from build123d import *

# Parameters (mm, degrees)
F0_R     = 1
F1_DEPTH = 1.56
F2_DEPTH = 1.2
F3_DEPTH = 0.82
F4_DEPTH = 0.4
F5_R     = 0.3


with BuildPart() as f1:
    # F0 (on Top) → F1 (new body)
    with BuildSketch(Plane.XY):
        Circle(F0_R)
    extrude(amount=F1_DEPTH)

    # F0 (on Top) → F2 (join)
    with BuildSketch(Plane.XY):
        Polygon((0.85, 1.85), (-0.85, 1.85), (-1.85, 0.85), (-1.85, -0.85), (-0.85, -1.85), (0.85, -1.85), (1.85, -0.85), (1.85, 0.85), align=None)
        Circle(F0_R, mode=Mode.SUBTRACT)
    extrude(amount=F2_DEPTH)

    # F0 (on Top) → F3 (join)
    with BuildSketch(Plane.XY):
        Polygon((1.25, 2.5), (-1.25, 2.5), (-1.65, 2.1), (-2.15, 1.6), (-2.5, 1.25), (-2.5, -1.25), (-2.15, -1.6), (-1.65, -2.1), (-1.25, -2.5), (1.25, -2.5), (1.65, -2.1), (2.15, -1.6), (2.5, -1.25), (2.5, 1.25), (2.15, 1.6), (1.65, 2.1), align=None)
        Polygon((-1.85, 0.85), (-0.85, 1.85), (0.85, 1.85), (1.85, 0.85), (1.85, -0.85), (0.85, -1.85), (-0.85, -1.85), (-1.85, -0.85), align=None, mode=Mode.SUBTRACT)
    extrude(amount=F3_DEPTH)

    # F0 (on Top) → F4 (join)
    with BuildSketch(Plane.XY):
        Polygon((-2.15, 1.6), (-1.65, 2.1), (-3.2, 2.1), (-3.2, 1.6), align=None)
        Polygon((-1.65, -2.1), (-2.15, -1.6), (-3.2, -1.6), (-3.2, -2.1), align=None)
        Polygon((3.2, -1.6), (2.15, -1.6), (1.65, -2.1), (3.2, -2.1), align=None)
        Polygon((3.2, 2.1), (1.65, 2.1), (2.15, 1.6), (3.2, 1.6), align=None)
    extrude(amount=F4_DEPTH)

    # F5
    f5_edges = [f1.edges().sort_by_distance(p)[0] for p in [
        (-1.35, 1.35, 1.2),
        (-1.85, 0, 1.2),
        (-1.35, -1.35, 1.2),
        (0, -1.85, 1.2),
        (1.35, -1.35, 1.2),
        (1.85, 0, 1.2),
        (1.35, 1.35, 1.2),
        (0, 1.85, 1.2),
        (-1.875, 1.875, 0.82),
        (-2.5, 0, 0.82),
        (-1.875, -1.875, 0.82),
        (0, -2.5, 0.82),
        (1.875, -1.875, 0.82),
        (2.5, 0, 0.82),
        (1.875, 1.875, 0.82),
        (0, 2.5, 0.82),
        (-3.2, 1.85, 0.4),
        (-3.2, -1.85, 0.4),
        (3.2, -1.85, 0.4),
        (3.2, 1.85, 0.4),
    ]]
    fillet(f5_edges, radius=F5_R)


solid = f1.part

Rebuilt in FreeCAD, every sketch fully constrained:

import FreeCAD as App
import Part
import Sketcher

V = App.Vector
Q = App.Units.Quantity


def edges_at(feature, points):
    """Names of the edges that pass closest to the given points."""
    edges = feature.Shape.Edges
    near = lambda p: min(range(len(edges)), key=lambda i: edges[i].distToShape(Part.Vertex(*p))[0])
    return sorted({f"Edge{near(p) + 1}" for p in points})


def add_polygon(sketch, points):
    """Adds a closed chain of lines whose ends are joined by coincident constraints."""
    first, n = sketch.GeometryCount, len(points)
    for a, b in zip(points, points[1:] + points[:1]):
        sketch.addGeometry(Part.LineSegment(App.Vector(*a, 0), App.Vector(*b, 0)), False)
    for i in range(n):
        sketch.addConstraint(Sketcher.Constraint("Coincident", first + i, 2, first + (i + 1) % n, 1))

doc = App.newDocument("Part")
params = doc.addObject("Spreadsheet::Sheet", "Params")
for row, (alias, value) in enumerate([
    ("sketch1_diameter", "2 mm"),
    ("pad1_length", "1.56 mm"),
    ("sketch2_diameter", "2 mm"),
    ("sketch2_width", "1.7 mm"),
    ("pad2_length", "1.2 mm"),
    ("sketch3_width", "2.5 mm"),
    ("sketch3_width2", "1.7 mm"),
    ("pad3_length", "0.82 mm"),
    ("sketch4_height", "0.5 mm"),
    ("sketch4_width", "1.55 mm"),
    ("pad4_length", "0.4 mm"),
    ("fillet_radius", "0.3 mm"),
], start=1):
    params.set(f"A{row}", alias)
    params.set(f"B{row}", "=" + value)
    params.setAlias(f"B{row}", alias)

body = doc.addObject("PartDesign::Body", "Body")

# Sketch on XY plane
sketch1 = body.newObject("Sketcher::SketchObject", "Sketch")
sketch1.AttachmentSupport = (doc.getObject("XY_Plane"), [""])
sketch1.MapMode = "FlatFace"
sketch1.addGeometry(Part.Circle(V(0, 0, 0), V(0, 0, 1), 1), False)
sketch1.addConstraint(Sketcher.Constraint("Coincident", 0, 3, -1, 1))
sketch1.addConstraint(Sketcher.Constraint("Diameter", 0, Q("2 mm")))
sketch1.setExpression("Constraints[1]", "Params.sketch1_diameter")
pad1 = body.newObject("PartDesign::Pad", "Pad")
pad1.Profile = sketch1
pad1.setExpression("Length", "Params.pad1_length")

# Sketch on XY plane
sketch2 = body.newObject("Sketcher::SketchObject", "Sketch001")
sketch2.AttachmentSupport = (doc.getObject("XY_Plane"), [""])
sketch2.MapMode = "FlatFace"
add_polygon(sketch2, [(0.8, 1.9), (-0.8, 1.9), (-1.9, 0.8), (-1.9, -0.8), (-0.8, -1.9), (0.8, -1.9), (1.9, -0.8), (1.9, 0.8)])  # lines 0-7
sketch2.addGeometry(Part.Circle(V(0, 0, 0), V(0, 0, 1), 1), False)  # 8
sketch2.addConstraint(Sketcher.Constraint("Horizontal", 0))
sketch2.addConstraint(Sketcher.Constraint("Vertical", 2))
sketch2.addConstraint(Sketcher.Constraint("Horizontal", 4))
sketch2.addConstraint(Sketcher.Constraint("Vertical", 6))
sketch2.addConstraint(Sketcher.Constraint("Coincident", 8, 3, -1, 1))
sketch2.addConstraint(Sketcher.Constraint("Symmetric", 0, 2, 4, 2, -1, 1))
sketch2.addConstraint(Sketcher.Constraint("Symmetric", 1, 2, 5, 2, -1, 1))
sketch2.addConstraint(Sketcher.Constraint("Perpendicular", 1, 3))
sketch2.addConstraint(Sketcher.Constraint("Perpendicular", 5, 7))
sketch2.addConstraint(Sketcher.Constraint("Horizontal", 2, 2, 5, 2))
sketch2.addConstraint(Sketcher.Constraint("Horizontal", 1, 2, 6, 2))
sketch2.addConstraint(Sketcher.Constraint("Vertical", 0, 2, 3, 2))
sketch2.addConstraint(Sketcher.Constraint("Equal", 4, 2))
sketch2.addConstraint(Sketcher.Constraint("Diameter", 8, Q("2 mm")))
sketch2.addConstraint(Sketcher.Constraint("DistanceX", 0, 2, 0, 1, Q("1.7 mm")))
sketch2.addConstraint(Sketcher.Constraint("DistanceX", 1, 2, 0, 2, Q("1 mm")))
sketch2.setExpression("Constraints[21]", "Params.sketch2_diameter")
sketch2.setExpression("Constraints[22]", "Params.sketch2_width")
pad2 = body.newObject("PartDesign::Pad", "Pad001")
pad2.Profile = sketch2
pad2.setExpression("Length", "Params.pad2_length")

# Sketch on XY plane
sketch3 = body.newObject("Sketcher::SketchObject", "Sketch002")
sketch3.AttachmentSupport = (doc.getObject("XY_Plane"), [""])
sketch3.MapMode = "FlatFace"
add_polygon(sketch3, [(1.2, 2.5), (-1.2, 2.5), (-2.5, 1.2), (-2.5, -1.2), (-1.2, -2.5), (1.2, -2.5), (2.5, -1.2), (2.5, 1.2)])  # lines 0-7
add_polygon(sketch3, [(-1.9, -0.8), (-1.9, 0.8), (-0.8, 1.9), (0.8, 1.9), (1.9, 0.8), (1.9, -0.8), (0.8, -1.9), (-0.8, -1.9)])  # lines 8-15
sketch3.addConstraint(Sketcher.Constraint("Horizontal", 0))
sketch3.addConstraint(Sketcher.Constraint("Vertical", 2))
sketch3.addConstraint(Sketcher.Constraint("Horizontal", 4))
sketch3.addConstraint(Sketcher.Constraint("Vertical", 6))
sketch3.addConstraint(Sketcher.Constraint("Vertical", 8))
sketch3.addConstraint(Sketcher.Constraint("Horizontal", 10))
sketch3.addConstraint(Sketcher.Constraint("Vertical", 12))
sketch3.addConstraint(Sketcher.Constraint("Horizontal", 14))
sketch3.addConstraint(Sketcher.Constraint("Symmetric", 0, 2, 4, 2, -1, 1))
sketch3.addConstraint(Sketcher.Constraint("Symmetric", 1, 2, 5, 2, -1, 1))
sketch3.addConstraint(Sketcher.Constraint("Symmetric", 8, 2, 12, 2, -1, 1))
sketch3.addConstraint(Sketcher.Constraint("Symmetric", 9, 2, 13, 2, -1, 1))
sketch3.addConstraint(Sketcher.Constraint("Perpendicular", 1, 3))
sketch3.addConstraint(Sketcher.Constraint("Perpendicular", 5, 7))
sketch3.addConstraint(Sketcher.Constraint("Perpendicular", 7, 9))
sketch3.addConstraint(Sketcher.Constraint("Perpendicular", 9, 11))
sketch3.addConstraint(Sketcher.Constraint("Perpendicular", 13, 15))
sketch3.addConstraint(Sketcher.Constraint("Horizontal", 2, 2, 5, 2))
sketch3.addConstraint(Sketcher.Constraint("Horizontal", 1, 2, 6, 2))
sketch3.addConstraint(Sketcher.Constraint("Horizontal", 8, 2, 11, 2))
sketch3.addConstraint(Sketcher.Constraint("Horizontal", 12, 2, 15, 2))
sketch3.addConstraint(Sketcher.Constraint("Vertical", 0, 2, 3, 2))
sketch3.addConstraint(Sketcher.Constraint("Equal", 4, 2))
sketch3.addConstraint(Sketcher.Constraint("Equal", 14, 8))
sketch3.addConstraint(Sketcher.Constraint("DistanceX", 0, 2, 0, 1, Q("2.5 mm")))
sketch3.addConstraint(Sketcher.Constraint("DistanceX", 10, 1, 10, 2, Q("1.7 mm")))
sketch3.addConstraint(Sketcher.Constraint("DistanceY", 3, 2, 0, 2, Q("5 mm")))
sketch3.addConstraint(Sketcher.Constraint("DistanceX", 8, 2, 9, 2, Q("1 mm")))
sketch3.setExpression("Constraints[40]", "Params.sketch3_width")
sketch3.setExpression("Constraints[41]", "Params.sketch3_width2")
pad3 = body.newObject("PartDesign::Pad", "Pad002")
pad3.Profile = sketch3
pad3.setExpression("Length", "Params.pad3_length")

# Sketch on XY plane
sketch4 = body.newObject("Sketcher::SketchObject", "Sketch003")
sketch4.AttachmentSupport = (doc.getObject("XY_Plane"), [""])
sketch4.MapMode = "FlatFace"
add_polygon(sketch4, [(-2.1, 1.6), (-1.6, 2.1), (-3.2, 2.1), (-3.2, 1.6)])  # lines 0-3
add_polygon(sketch4, [(-1.6, -2.1), (-2.1, -1.6), (-3.2, -1.6), (-3.2, -2.1)])  # lines 4-7
add_polygon(sketch4, [(3.2, -1.6), (2.1, -1.6), (1.6, -2.1), (3.2, -2.1)])  # lines 8-11
add_polygon(sketch4, [(3.2, 2.1), (1.6, 2.1), (2.1, 1.6), (3.2, 1.6)])  # lines 12-15
sketch4.addConstraint(Sketcher.Constraint("Horizontal", 1))
sketch4.addConstraint(Sketcher.Constraint("Vertical", 2))
sketch4.addConstraint(Sketcher.Constraint("Horizontal", 3))
sketch4.addConstraint(Sketcher.Constraint("Horizontal", 5))
sketch4.addConstraint(Sketcher.Constraint("Vertical", 6))
sketch4.addConstraint(Sketcher.Constraint("Horizontal", 7))
sketch4.addConstraint(Sketcher.Constraint("Horizontal", 8))
sketch4.addConstraint(Sketcher.Constraint("Horizontal", 10))
sketch4.addConstraint(Sketcher.Constraint("Vertical", 11))
sketch4.addConstraint(Sketcher.Constraint("Horizontal", 12))
sketch4.addConstraint(Sketcher.Constraint("Horizontal", 14))
sketch4.addConstraint(Sketcher.Constraint("Vertical", 15))
sketch4.addConstraint(Sketcher.Constraint("Symmetric", 3, 2, 8, 2, -1, 1))
sketch4.addConstraint(Sketcher.Constraint("Symmetric", 0, 2, 9, 2, -1, 1))
sketch4.addConstraint(Sketcher.Constraint("Symmetric", 7, 2, 12, 2, -1, 1))
sketch4.addConstraint(Sketcher.Constraint("Symmetric", 4, 2, 13, 2, -1, 1))
sketch4.addConstraint(Sketcher.Constraint("Symmetric", 4, 2, 8, 2, -2))
sketch4.addConstraint(Sketcher.Constraint("Symmetric", 7, 2, 9, 2, -2))
sketch4.addConstraint(Sketcher.Constraint("Perpendicular", 0, 4))
sketch4.addConstraint(Sketcher.Constraint("Vertical", 2, 2, 5, 2))
sketch4.addConstraint(Sketcher.Constraint("Vertical", 11, 2, 14, 2))
sketch4.addConstraint(Sketcher.Constraint("Equal", 5, 8))
sketch4.addConstraint(Sketcher.Constraint("DistanceY", 2, 2, 2, 1, Q("0.5 mm")))
sketch4.addConstraint(Sketcher.Constraint("DistanceX", 1, 2, 1, 1, Q("1.55 mm")))
sketch4.addConstraint(Sketcher.Constraint("DistanceY", -1, 1, 0, 2, Q("2.1 mm")))
sketch4.addConstraint(Sketcher.Constraint("DistanceX", 1, 2, -1, 1, Q("3.2 mm")))
sketch4.setExpression("Constraints[38]", "Params.sketch4_height")
sketch4.setExpression("Constraints[39]", "Params.sketch4_width")
pad4 = body.newObject("PartDesign::Pad", "Pad003")
pad4.Profile = sketch4
pad4.setExpression("Length", "Params.pad4_length")
doc.recompute()

fillet = body.newObject("PartDesign::Fillet", "Fillet")
fillet.Base = (pad4, edges_at(pad4, [
    (-1.35, 1.35, 1.2),
    (-1.85, 0, 1.2),
    (-1.35, -1.35, 1.2),
    (0, -1.85, 1.2),
    (1.35, -1.35, 1.2),
    (1.85, 0, 1.2),
    (1.35, 1.35, 1.2),
    (0, 1.85, 1.2),
    (-1.875, 1.875, 0.82),
    (-2.5, 0, 0.82),
    (-1.875, -1.875, 0.82),
    (0, -2.5, 0.82),
    (1.875, -1.875, 0.82),
    (2.5, 0, 0.82),
    (1.875, 1.875, 0.82),
    (0, 2.5, 0.82),
    (-3.2, 1.85, 0.4),
    (-3.2, -1.85, 0.4),
    (3.2, -1.85, 0.4),
    (3.2, 1.85, 0.4),
]))
fillet.setExpression("Radius", "Params.fillet_radius")

doc.recompute()
